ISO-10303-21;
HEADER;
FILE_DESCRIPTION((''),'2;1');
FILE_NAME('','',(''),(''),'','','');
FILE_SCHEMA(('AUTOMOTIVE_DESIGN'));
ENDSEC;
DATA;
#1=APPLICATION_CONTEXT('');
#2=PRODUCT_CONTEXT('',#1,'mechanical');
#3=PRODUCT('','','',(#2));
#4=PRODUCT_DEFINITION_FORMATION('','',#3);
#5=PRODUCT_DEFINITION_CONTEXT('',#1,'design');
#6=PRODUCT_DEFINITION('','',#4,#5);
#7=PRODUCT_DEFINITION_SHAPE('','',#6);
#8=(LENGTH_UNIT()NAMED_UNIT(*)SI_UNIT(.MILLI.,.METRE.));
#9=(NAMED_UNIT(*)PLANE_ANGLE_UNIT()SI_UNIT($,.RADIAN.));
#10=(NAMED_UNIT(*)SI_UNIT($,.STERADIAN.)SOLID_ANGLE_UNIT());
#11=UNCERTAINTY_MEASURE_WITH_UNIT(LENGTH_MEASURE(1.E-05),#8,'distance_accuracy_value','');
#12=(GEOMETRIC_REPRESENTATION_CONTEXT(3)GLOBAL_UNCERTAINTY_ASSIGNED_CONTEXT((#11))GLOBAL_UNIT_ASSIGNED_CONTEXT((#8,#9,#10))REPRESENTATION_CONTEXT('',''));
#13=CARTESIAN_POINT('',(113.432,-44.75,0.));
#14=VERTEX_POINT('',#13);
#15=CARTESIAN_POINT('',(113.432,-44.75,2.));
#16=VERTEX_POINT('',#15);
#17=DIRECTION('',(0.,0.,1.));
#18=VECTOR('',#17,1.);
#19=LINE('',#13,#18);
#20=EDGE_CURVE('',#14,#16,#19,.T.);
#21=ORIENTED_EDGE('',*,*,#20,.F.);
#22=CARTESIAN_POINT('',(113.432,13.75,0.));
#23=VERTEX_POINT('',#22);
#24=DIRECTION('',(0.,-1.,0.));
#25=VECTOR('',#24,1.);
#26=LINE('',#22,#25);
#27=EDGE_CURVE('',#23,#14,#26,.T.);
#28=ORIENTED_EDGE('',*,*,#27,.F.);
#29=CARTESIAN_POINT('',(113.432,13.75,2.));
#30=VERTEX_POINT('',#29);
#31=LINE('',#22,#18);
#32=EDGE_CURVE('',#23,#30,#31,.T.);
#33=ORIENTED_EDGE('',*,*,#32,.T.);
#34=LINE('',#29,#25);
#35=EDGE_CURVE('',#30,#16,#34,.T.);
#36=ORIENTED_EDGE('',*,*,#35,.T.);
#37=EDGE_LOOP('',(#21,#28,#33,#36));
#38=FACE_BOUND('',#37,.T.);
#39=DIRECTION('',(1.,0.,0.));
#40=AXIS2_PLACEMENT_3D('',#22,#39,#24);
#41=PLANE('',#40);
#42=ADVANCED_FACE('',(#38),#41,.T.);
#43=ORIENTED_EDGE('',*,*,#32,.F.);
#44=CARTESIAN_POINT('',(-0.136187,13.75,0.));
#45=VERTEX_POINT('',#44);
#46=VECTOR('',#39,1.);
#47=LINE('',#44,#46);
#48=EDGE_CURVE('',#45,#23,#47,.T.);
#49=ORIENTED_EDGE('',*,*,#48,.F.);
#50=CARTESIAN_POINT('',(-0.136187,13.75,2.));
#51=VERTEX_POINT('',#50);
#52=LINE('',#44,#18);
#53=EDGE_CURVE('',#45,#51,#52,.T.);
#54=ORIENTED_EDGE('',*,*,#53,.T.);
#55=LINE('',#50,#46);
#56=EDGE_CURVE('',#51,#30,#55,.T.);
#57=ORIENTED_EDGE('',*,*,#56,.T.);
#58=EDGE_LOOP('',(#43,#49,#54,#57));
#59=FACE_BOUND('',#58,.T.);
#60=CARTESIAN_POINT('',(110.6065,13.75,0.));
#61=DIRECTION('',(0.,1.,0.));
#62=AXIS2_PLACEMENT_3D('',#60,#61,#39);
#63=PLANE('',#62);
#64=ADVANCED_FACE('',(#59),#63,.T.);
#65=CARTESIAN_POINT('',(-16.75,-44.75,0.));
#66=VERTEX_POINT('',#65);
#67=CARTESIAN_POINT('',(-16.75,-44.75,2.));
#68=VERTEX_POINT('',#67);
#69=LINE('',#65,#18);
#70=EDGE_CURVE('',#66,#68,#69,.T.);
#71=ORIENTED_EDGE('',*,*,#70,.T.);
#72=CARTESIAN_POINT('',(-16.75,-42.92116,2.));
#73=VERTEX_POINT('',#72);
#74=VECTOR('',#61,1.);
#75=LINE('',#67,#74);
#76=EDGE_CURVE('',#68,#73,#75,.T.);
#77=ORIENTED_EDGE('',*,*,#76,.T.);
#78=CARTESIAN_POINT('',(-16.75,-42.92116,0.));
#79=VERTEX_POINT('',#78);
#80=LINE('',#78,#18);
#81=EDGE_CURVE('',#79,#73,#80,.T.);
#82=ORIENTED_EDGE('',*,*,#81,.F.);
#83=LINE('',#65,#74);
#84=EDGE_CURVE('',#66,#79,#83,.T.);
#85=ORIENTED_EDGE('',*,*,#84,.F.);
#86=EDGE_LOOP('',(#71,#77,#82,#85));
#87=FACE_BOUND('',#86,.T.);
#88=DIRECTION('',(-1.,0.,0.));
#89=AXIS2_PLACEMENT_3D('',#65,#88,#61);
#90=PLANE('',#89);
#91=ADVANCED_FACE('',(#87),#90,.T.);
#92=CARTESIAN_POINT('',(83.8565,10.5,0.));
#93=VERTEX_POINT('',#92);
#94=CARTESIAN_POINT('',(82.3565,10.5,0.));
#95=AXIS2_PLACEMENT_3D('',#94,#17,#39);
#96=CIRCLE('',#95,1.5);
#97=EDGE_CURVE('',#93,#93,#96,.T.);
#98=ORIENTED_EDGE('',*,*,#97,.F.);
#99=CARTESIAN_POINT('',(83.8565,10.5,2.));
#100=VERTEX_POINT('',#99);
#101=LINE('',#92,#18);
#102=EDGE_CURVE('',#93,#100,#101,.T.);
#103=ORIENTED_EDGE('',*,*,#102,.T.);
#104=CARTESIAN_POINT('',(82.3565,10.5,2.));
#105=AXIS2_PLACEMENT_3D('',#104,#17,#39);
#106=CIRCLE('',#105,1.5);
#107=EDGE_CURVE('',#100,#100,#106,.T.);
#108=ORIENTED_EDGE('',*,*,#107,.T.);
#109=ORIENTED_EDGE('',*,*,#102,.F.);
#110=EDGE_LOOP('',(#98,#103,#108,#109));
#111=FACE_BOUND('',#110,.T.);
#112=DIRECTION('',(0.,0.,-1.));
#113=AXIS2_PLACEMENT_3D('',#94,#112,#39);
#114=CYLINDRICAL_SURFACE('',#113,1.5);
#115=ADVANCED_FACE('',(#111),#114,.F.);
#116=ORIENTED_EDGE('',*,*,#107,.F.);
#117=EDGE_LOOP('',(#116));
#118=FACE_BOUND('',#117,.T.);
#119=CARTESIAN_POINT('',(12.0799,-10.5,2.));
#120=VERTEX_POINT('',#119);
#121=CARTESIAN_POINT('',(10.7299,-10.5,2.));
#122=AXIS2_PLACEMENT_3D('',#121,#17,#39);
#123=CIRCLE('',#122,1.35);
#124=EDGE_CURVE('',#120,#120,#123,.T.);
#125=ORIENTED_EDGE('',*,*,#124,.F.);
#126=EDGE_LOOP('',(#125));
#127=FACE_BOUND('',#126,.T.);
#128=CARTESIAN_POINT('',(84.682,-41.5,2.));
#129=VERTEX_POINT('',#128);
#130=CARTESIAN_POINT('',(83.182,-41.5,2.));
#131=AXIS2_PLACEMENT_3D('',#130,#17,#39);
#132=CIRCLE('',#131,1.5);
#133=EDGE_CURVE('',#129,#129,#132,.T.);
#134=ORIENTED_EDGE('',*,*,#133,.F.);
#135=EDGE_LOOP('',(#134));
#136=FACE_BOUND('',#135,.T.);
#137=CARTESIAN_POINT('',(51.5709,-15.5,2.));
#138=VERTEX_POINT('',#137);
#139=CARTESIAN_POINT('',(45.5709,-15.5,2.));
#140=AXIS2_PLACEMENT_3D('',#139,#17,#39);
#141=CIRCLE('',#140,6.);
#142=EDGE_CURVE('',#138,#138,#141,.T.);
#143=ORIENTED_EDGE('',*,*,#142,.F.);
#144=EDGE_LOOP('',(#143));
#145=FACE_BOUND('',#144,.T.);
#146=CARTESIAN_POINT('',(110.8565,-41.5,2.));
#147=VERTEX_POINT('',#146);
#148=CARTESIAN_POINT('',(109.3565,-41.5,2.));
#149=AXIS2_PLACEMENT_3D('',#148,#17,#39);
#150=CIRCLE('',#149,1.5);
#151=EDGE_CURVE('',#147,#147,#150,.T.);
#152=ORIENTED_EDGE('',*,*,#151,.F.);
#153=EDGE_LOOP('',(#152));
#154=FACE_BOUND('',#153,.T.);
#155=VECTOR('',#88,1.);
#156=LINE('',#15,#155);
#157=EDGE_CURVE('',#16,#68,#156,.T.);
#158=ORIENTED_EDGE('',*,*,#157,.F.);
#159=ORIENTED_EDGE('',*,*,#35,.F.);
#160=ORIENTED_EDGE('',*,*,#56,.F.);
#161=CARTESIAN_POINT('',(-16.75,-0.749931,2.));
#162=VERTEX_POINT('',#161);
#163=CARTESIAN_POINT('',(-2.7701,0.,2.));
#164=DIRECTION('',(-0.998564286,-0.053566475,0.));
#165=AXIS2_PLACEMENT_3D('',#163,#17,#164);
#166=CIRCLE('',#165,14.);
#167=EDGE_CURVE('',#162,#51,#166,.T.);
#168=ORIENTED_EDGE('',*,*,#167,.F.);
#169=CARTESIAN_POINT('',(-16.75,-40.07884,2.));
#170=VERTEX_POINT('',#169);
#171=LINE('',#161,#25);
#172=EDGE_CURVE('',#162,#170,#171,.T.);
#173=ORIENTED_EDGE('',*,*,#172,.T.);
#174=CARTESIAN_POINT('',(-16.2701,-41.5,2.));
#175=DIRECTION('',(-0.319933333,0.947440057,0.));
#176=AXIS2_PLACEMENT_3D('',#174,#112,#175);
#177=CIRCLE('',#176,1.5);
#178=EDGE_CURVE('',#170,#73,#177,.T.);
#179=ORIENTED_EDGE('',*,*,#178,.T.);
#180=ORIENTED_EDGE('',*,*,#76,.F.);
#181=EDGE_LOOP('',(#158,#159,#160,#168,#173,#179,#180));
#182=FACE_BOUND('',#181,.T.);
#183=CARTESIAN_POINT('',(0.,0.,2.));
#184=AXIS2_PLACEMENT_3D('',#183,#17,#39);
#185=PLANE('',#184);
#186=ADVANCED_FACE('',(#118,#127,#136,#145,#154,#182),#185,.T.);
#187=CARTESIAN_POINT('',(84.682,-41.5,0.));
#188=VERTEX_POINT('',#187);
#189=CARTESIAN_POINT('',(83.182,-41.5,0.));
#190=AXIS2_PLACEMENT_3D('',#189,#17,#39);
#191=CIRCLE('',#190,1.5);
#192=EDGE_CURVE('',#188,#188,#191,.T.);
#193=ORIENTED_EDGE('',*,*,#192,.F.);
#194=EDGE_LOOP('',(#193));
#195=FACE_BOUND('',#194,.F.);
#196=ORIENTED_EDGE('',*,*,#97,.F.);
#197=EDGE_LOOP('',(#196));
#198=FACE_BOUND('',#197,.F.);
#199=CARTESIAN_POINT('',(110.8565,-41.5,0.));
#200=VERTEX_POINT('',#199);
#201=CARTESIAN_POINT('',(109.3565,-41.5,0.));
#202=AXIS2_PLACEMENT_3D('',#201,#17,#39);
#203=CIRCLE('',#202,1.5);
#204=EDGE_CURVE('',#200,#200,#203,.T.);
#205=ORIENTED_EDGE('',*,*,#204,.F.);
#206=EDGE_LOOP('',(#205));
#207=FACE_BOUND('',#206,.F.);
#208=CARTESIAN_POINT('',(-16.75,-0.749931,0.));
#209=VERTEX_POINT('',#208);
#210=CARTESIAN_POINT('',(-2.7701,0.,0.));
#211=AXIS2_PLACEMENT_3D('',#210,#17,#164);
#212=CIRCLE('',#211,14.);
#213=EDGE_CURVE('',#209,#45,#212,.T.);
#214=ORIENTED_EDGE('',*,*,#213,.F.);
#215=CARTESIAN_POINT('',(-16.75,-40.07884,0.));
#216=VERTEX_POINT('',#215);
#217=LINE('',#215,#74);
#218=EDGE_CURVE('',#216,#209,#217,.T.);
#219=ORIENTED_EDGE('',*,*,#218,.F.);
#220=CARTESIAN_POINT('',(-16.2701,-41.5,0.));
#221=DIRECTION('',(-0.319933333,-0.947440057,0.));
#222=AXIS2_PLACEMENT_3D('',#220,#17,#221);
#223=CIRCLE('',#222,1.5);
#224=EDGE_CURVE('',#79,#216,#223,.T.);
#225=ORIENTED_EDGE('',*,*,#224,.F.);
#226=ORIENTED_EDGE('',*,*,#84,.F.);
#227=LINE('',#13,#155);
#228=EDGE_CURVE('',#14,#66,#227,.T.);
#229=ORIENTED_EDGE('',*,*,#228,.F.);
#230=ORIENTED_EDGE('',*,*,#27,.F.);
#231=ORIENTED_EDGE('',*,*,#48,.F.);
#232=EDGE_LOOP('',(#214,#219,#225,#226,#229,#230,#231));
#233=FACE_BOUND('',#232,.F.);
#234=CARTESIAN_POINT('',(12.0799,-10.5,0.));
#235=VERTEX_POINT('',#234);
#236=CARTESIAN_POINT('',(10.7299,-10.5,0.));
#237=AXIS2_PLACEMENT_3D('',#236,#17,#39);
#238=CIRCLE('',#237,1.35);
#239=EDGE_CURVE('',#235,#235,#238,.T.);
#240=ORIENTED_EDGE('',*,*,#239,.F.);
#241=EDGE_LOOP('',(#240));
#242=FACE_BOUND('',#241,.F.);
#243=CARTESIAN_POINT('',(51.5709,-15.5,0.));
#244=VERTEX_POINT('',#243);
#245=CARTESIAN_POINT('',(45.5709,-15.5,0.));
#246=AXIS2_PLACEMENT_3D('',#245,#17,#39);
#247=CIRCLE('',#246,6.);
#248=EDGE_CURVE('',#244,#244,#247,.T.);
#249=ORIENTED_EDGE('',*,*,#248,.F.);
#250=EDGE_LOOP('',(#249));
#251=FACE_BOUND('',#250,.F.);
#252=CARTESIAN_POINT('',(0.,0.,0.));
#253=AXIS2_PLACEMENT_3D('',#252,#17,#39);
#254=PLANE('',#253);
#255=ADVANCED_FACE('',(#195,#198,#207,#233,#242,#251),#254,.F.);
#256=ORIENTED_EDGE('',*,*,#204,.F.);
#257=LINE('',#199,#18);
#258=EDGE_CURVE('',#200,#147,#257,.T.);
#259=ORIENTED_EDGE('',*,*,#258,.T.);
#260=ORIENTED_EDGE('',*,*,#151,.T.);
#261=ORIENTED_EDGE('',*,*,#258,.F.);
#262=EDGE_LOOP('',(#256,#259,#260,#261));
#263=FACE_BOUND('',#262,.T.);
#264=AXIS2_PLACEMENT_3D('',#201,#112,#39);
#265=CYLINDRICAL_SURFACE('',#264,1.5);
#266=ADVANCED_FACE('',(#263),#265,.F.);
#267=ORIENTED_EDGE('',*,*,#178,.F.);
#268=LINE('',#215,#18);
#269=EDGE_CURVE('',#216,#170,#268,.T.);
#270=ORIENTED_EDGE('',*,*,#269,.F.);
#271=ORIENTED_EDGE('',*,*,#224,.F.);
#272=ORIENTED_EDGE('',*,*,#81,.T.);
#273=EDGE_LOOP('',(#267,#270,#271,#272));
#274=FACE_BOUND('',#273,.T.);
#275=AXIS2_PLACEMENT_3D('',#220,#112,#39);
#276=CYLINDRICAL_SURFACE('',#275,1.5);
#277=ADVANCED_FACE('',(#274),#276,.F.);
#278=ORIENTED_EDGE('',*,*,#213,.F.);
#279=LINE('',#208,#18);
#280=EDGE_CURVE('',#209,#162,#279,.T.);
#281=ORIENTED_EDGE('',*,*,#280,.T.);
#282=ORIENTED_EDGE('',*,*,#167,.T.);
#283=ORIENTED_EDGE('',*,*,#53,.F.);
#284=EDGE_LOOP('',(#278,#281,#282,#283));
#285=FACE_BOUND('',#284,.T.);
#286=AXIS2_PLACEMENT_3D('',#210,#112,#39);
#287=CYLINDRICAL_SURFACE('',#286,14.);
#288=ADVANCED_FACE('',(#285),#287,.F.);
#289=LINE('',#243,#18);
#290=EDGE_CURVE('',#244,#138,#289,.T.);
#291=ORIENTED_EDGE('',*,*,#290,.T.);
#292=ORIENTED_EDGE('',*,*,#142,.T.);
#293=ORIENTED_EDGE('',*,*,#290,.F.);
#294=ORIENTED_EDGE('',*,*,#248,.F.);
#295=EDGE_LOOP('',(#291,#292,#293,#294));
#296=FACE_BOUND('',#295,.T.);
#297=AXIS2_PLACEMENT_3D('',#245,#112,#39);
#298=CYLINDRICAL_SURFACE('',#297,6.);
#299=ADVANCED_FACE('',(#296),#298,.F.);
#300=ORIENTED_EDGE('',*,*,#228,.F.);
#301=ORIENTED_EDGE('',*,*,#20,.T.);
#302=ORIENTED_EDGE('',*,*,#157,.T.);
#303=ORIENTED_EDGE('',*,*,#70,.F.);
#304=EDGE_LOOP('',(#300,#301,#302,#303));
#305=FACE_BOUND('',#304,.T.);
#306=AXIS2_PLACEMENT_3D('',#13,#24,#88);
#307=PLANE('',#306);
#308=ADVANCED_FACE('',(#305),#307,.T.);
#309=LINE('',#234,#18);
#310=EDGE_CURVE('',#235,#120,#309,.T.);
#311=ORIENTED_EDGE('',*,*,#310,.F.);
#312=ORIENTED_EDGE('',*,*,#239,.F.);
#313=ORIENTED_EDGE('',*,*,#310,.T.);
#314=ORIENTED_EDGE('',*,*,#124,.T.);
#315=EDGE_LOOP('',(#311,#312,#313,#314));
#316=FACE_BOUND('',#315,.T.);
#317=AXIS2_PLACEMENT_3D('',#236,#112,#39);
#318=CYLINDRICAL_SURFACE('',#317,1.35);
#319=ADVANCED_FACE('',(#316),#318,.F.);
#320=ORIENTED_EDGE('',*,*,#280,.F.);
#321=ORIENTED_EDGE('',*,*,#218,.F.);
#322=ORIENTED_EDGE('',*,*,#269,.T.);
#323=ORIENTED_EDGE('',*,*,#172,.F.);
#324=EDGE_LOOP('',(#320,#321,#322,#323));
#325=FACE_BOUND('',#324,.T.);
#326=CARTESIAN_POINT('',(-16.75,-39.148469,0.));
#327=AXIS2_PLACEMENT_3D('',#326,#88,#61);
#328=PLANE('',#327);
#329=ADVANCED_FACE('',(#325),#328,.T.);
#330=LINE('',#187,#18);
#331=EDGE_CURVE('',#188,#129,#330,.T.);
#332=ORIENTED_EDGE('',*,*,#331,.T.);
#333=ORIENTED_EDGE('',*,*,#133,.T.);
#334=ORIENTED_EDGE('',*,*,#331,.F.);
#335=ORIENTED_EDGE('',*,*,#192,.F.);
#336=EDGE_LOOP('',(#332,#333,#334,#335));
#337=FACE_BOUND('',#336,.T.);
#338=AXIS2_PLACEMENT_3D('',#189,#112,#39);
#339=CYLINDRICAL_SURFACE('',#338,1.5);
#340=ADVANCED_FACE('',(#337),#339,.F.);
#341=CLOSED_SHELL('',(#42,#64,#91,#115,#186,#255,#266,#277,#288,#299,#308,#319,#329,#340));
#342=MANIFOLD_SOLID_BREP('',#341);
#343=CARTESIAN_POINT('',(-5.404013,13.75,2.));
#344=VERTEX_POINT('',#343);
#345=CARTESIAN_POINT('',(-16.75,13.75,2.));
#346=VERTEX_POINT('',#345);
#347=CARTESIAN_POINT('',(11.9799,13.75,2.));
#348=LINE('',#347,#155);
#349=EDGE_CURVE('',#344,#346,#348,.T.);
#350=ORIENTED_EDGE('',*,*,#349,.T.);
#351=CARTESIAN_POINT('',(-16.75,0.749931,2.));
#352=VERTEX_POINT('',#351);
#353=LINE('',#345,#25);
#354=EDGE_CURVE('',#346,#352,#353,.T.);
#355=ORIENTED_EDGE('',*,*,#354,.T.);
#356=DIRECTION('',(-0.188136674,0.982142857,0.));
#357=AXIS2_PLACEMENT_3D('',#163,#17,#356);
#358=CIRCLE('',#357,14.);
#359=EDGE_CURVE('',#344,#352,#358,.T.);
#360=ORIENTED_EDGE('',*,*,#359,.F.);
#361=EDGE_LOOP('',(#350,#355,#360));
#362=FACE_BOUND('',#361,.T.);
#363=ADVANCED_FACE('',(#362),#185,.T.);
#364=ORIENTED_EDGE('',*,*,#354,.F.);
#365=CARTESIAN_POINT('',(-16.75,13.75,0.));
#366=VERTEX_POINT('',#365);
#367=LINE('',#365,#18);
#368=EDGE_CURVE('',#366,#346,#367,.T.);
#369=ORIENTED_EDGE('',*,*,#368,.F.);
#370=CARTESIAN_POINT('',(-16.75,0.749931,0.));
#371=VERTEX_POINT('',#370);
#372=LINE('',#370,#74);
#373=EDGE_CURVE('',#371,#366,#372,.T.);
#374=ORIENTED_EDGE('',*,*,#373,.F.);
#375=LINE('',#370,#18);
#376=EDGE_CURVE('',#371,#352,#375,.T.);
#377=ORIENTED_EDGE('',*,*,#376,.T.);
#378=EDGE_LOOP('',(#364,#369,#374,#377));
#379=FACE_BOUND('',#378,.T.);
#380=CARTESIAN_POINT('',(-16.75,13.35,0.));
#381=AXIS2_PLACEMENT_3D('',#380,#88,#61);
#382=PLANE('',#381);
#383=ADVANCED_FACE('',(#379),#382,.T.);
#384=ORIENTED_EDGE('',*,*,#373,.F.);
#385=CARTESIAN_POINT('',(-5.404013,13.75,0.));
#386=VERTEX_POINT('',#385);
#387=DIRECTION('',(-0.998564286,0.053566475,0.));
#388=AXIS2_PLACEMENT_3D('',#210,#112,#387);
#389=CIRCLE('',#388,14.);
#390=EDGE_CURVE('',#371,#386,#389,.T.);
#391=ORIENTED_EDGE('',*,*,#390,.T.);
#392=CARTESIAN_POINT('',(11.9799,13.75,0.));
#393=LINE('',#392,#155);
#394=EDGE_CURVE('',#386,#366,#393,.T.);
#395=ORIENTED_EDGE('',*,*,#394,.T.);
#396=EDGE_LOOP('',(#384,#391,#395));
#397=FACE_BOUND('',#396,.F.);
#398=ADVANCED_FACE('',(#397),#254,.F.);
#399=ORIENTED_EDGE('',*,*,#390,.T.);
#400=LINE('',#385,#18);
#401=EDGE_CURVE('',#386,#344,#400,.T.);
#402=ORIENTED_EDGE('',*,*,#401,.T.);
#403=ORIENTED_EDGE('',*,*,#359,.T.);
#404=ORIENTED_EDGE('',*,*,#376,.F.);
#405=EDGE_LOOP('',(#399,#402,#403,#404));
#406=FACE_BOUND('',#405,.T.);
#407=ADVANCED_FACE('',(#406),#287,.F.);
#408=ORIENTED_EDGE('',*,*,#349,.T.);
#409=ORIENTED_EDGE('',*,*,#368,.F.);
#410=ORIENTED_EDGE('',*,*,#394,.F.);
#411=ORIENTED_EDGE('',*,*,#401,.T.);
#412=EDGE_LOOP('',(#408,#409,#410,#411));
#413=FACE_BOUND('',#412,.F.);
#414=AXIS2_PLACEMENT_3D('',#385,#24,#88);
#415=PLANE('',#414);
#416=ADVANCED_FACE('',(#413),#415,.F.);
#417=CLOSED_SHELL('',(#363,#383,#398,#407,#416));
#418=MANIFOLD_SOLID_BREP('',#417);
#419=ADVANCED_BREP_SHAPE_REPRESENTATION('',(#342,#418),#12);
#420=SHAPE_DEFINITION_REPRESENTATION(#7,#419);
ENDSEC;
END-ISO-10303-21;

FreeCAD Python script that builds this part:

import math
import FreeCAD as App
import Part
import Sketcher

V = App.Vector

doc = App.newDocument("Part")
body = doc.addObject("PartDesign::Body", "Body")
body.AllowCompound = True

sketch1 = body.newObject("Sketcher::SketchObject", "Sketch")
sketch1.AttachmentSupport = (doc.getObject("XY_Plane"), [""])
sketch1.MapMode = "FlatFace"
sketch1.addGeometry(Part.LineSegment(V(113.4, 13.8, 0), V(-0.1, 13.8, 0)), False)
sketch1.addGeometry(Part.ArcOfCircle(Part.Circle(V(-2.8, 0, 0), V(0, 0, 1), 14), math.radians(-177), math.radians(79)), False)
sketch1.addGeometry(Part.LineSegment(V(-16.8, -0.7, 0), V(-16.8, -40.1, 0)), False)
sketch1.addGeometry(Part.ArcOfCircle(Part.Circle(V(-16.3, -41.5, 0), V(0, 0, 1), 1.5), math.radians(-109), math.radians(109)), False)
sketch1.addGeometry(Part.LineSegment(V(-16.8, -42.9, 0), V(-16.8, -44.8, 0)), False)
sketch1.addGeometry(Part.LineSegment(V(-16.8, -44.8, 0), V(113.4, -44.8, 0)), False)
sketch1.addGeometry(Part.LineSegment(V(113.4, -44.8, 0), V(113.4, 13.8, 0)), False)
sketch1.addGeometry(Part.Circle(V(45.6, -15.5, 0), V(0, 0, 1), 6), False)
sketch1.addGeometry(Part.Circle(V(83.2, -41.5, 0), V(0, 0, 1), 1.5), False)
sketch1.addGeometry(Part.Circle(V(109.4, -41.5, 0), V(0, 0, 1), 1.5), False)
sketch1.addGeometry(Part.Circle(V(10.7, -10.5, 0), V(0, 0, 1), 1.4), False)
sketch1.addGeometry(Part.Circle(V(82.4, 10.5, 0), V(0, 0, 1), 1.5), False)
sketch1.addGeometry(Part.LineSegment(V(-5.4, 13.8, 0), V(-16.8, 13.8, 0)), False)
sketch1.addGeometry(Part.LineSegment(V(-16.8, 13.8, 0), V(-16.8, 0.7, 0)), False)
sketch1.addGeometry(Part.ArcOfCircle(Part.Circle(V(-2.8, 0, 0), V(0, 0, 1), 14), math.radians(101), math.radians(177)), False)
sketch1.addConstraint(Sketcher.Constraint("Coincident", 0, 2, 1, 2))
sketch1.addConstraint(Sketcher.Constraint("Coincident", 1, 1, 2, 1))
sketch1.addConstraint(Sketcher.Constraint("Coincident", 2, 2, 3, 2))
sketch1.addConstraint(Sketcher.Constraint("Coincident", 3, 1, 4, 1))
sketch1.addConstraint(Sketcher.Constraint("Coincident", 4, 2, 5, 1))
sketch1.addConstraint(Sketcher.Constraint("Coincident", 5, 2, 6, 1))
sketch1.addConstraint(Sketcher.Constraint("Coincident", 6, 2, 0, 1))
sketch1.addConstraint(Sketcher.Constraint("Coincident", 12, 2, 13, 1))
sketch1.addConstraint(Sketcher.Constraint("Coincident", 13, 2, 14, 2))
sketch1.addConstraint(Sketcher.Constraint("Coincident", 14, 1, 12, 1))
sketch1.addConstraint(Sketcher.Constraint("Horizontal", 0))
sketch1.addConstraint(Sketcher.Constraint("Vertical", 2))
sketch1.addConstraint(Sketcher.Constraint("Vertical", 4))
sketch1.addConstraint(Sketcher.Constraint("Horizontal", 5))
sketch1.addConstraint(Sketcher.Constraint("Vertical", 6))
sketch1.addConstraint(Sketcher.Constraint("Horizontal", 12))
sketch1.addConstraint(Sketcher.Constraint("Vertical", 13))
sketch1.addConstraint(Sketcher.Constraint("Coincident", 14, 3, 1, 3))
sketch1.addConstraint(Sketcher.Constraint("Equal", 3, 8))
sketch1.addConstraint(Sketcher.Constraint("Equal", 8, 9))
sketch1.addConstraint(Sketcher.Constraint("Equal", 9, 11))
sketch1.addConstraint(Sketcher.Constraint("Equal", 1, 14))
sketch1.addConstraint(Sketcher.Constraint("Symmetric", 1, 1, 13, 2, -1))
sketch1.addConstraint(Sketcher.Constraint("Horizontal", 3, 3, 8, 3))
sketch1.addConstraint(Sketcher.Constraint("Horizontal", 8, 3, 9, 3))
sketch1.addConstraint(Sketcher.Constraint("Horizontal", 6, 2, 12, 2))
sketch1.addConstraint(Sketcher.Constraint("Vertical", 2, 2, 3, 1))
sketch1.addConstraint(Sketcher.Constraint("Diameter", 7, 12.0))
sketch1.addConstraint(Sketcher.Constraint("Diameter", 8, 3.0))
sketch1.addConstraint(Sketcher.Constraint("Radius", 1, 14.0))
sketch1.addConstraint(Sketcher.Constraint("Diameter", 10, 2.7))
sketch1.addConstraint(Sketcher.Constraint("DistanceY", 13, 2, 13, 1, 13.0))
sketch1.addConstraint(Sketcher.Constraint("DistanceY", 6, 1, 6, 2, 58.5))
sketch1.addConstraint(Sketcher.Constraint("DistanceY", 3, 3, 7, 3, 26.0))
sketch1.addConstraint(Sketcher.Constraint("DistanceY", 7, 3, 10, 3, 5.0))
sketch1.addConstraint(Sketcher.Constraint("DistanceX", 3, 3, 10, 3, 27.0))
sketch1.addConstraint(Sketcher.Constraint("DistanceY", 7, 3, 11, 3, 26.0))
sketch1.addConstraint(Sketcher.Constraint("DistanceX", 11, 3, 9, 3, 27.0))
sketch1.addConstraint(Sketcher.Constraint("DistanceY", 4, 2, 1, 1, 44.0))
sketch1.addConstraint(Sketcher.Constraint("DistanceY", 3, 3, -1, 1, 41.5))
sketch1.addConstraint(Sketcher.Constraint("DistanceX", 3, 3, 1, 3, 13.5))
sketch1.addConstraint(Sketcher.Constraint("DistanceX", 5, 1, 5, 2, 130.182))
sketch1.addConstraint(Sketcher.Constraint("DistanceX", 1, 3, -1, 1, 2.77))
sketch1.addConstraint(Sketcher.Constraint("DistanceX", 8, 3, 5, 2, 30.25))
sketch1.addConstraint(Sketcher.Constraint("DistanceX", -1, 1, 7, 3, 45.571))
sketch1.addConstraint(Sketcher.Constraint("DistanceX", -1, 1, 9, 3, 109.3565))
pad1 = body.newObject("PartDesign::Pad", "Pad")
pad1.Profile = sketch1
pad1.Length = 2

doc.recompute()
